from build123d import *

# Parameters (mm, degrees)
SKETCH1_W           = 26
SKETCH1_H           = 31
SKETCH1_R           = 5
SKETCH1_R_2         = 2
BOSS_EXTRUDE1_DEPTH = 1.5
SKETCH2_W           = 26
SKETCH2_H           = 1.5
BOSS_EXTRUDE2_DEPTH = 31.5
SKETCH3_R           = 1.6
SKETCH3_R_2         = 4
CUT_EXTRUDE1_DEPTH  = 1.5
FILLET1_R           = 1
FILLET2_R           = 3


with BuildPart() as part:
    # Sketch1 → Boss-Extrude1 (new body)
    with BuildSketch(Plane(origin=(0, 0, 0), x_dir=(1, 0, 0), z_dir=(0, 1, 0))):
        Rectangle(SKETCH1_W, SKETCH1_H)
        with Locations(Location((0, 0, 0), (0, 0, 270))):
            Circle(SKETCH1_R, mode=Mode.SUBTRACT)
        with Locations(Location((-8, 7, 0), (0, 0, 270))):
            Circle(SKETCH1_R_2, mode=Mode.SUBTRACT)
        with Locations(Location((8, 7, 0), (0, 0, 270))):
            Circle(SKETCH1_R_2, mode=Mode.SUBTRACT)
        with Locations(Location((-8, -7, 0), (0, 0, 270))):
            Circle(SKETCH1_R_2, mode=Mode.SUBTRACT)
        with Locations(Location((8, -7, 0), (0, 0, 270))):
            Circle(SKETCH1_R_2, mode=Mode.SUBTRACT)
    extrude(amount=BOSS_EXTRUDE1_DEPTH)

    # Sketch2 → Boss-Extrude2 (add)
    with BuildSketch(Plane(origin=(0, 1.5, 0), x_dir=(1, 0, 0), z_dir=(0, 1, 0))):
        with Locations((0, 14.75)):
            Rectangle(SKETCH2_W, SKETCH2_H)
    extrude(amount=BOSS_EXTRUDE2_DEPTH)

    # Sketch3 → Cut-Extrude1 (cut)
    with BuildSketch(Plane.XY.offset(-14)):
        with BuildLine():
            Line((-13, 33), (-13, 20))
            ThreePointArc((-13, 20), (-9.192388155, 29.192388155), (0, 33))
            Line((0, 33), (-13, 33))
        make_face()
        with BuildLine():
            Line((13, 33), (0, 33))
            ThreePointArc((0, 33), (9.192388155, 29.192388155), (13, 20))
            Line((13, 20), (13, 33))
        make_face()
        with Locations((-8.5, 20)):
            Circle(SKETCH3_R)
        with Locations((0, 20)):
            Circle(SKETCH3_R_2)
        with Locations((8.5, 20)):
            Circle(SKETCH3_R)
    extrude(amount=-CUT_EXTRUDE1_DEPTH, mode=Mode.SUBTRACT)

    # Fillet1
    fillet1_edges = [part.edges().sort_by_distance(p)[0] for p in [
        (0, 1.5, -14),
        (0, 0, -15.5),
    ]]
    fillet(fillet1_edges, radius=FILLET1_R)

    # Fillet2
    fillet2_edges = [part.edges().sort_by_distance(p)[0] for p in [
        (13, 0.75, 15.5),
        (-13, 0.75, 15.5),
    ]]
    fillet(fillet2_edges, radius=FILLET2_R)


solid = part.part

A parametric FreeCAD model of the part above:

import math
import FreeCAD as App
import Part
import Sketcher

V = App.Vector
Q = App.Units.Quantity


def edges_at(feature, points):
    """Names of the edges that pass closest to the given points."""
    edges = feature.Shape.Edges
    near = lambda p: min(range(len(edges)), key=lambda i: edges[i].distToShape(Part.Vertex(*p))[0])
    return sorted({f"Edge{near(p) + 1}" for p in points})


def add_polygon(sketch, points):
    """Adds a closed chain of lines whose ends are joined by coincident constraints."""
    first, n = sketch.GeometryCount, len(points)
    for a, b in zip(points, points[1:] + points[:1]):
        sketch.addGeometry(Part.LineSegment(App.Vector(*a, 0), App.Vector(*b, 0)), False)
    for i in range(n):
        sketch.addConstraint(Sketcher.Constraint("Coincident", first + i, 2, first + (i + 1) % n, 1))

doc = App.newDocument("Part")
params = doc.addObject("Spreadsheet::Sheet", "Params")
for row, (alias, value) in enumerate([
    ("sketch1_diameter", "4 mm"),
    ("sketch1_diameter2", "10 mm"),
    ("sketch1_width", "26 mm"),
    ("sketch1_height", "31 mm"),
    ("pad1_length", "1.5 mm"),
    ("sketch2_width", "26 mm"),
    ("sketch2_height", "1.5 mm"),
    ("pad2_length", "31.5 mm"),
    ("sketch3_diameter", "8 mm"),
    ("sketch3_radius", "13 mm"),
    ("sketch3_diameter2", "3.2 mm"),
    ("pocket1_length", "1.5 mm"),
    ("fillet_radius", "1 mm"),
    ("fillet2_radius", "3 mm"),
], start=1):
    params.set(f"A{row}", alias)
    params.set(f"B{row}", "=" + value)
    params.setAlias(f"B{row}", alias)

body = doc.addObject("PartDesign::Body", "Body")

sketch1 = body.newObject("Sketcher::SketchObject", "Sketch")
sketch1.AttachmentSupport = (doc.getObject("XZ_Plane"), [""])
sketch1.MapMode = "FlatFace"
add_polygon(sketch1, [(-13, -15.5), (-13, 15.5), (13, 15.5), (13, -15.5)])
sketch1.addGeometry(Part.Circle(V(-8, 7, 0), V(0, 0, 1), 2), False)
sketch1.addGeometry(Part.Circle(V(8, 7, 0), V(0, 0, 1), 2), False)
sketch1.addGeometry(Part.Circle(V(-8, -7, 0), V(0, 0, 1), 2), False)
sketch1.addGeometry(Part.Circle(V(0, 0, 0), V(0, 0, 1), 5), False)
sketch1.addGeometry(Part.Circle(V(8, -7, 0), V(0, 0, 1), 2), False)
sketch1.addConstraint([
    Sketcher.Constraint("Vertical", 0),
    Sketcher.Constraint("Horizontal", 1),
    Sketcher.Constraint("Vertical", 2),
    Sketcher.Constraint("Horizontal", 3),
    Sketcher.Constraint("Coincident", 7, 3, -1, 1),
    Sketcher.Constraint("Equal", 4, 5),
    Sketcher.Constraint("Equal", 5, 6),
    Sketcher.Constraint("Equal", 6, 8),
    Sketcher.Constraint("Symmetric", 5, 3, 6, 3, -1, 1),
    Sketcher.Constraint("Symmetric", 4, 3, 8, 3, -1, 1),
    Sketcher.Constraint("Symmetric", 0, 2, 2, 2, -1, 1),
    Sketcher.Constraint("Symmetric", 4, 3, 5, 3, -2),
    Sketcher.Constraint("Diameter", 4, Q("4 mm")),
    Sketcher.Constraint("Diameter", 7, Q("10 mm")),
    Sketcher.Constraint("DistanceX", 1, 1, 1, 2, Q("26 mm")),
    Sketcher.Constraint("DistanceY", 0, 1, 0, 2, Q("31 mm")),
    Sketcher.Constraint("DistanceX", 4, 3, -1, 1, Q("8 mm")),
    Sketcher.Constraint("DistanceY", -1, 1, 4, 3, Q("7 mm")),
])
sketch1.setExpression("Constraints[16]", "Params.sketch1_diameter")
sketch1.setExpression("Constraints[17]", "Params.sketch1_diameter2")
sketch1.setExpression("Constraints[18]", "Params.sketch1_width")
sketch1.setExpression("Constraints[19]", "Params.sketch1_height")
pad1 = body.newObject("PartDesign::Pad", "Pad")
pad1.Profile = sketch1
pad1.setExpression("Length", "Params.pad1_length")
pad1.Reversed = True

sketch2 = body.newObject("Sketcher::SketchObject", "Sketch001")
sketch2.AttachmentSupport = (doc.getObject("XZ_Plane"), [""])
sketch2.MapMode = "FlatFace"
sketch2.AttachmentOffset = App.Placement(V(0, 0, -1.5), App.Rotation())
add_polygon(sketch2, [(-13, -15.5), (-13, -14), (13, -14), (13, -15.5)])
sketch2.addConstraint([
    Sketcher.Constraint("Vertical", 0),
    Sketcher.Constraint("Horizontal", 1),
    Sketcher.Constraint("Vertical", 2),
    Sketcher.Constraint("Horizontal", 3),
    Sketcher.Constraint("DistanceX", 1, 1, 1, 2, Q("26 mm")),
    Sketcher.Constraint("DistanceY", 0, 1, 0, 2, Q("1.5 mm")),
    Sketcher.Constraint("DistanceX", 0, 2, -1, 1, Q("13 mm")),
    Sketcher.Constraint("DistanceY", 0, 2, -1, 1, Q("14 mm")),
])
sketch2.setExpression("Constraints[8]", "Params.sketch2_width")
sketch2.setExpression("Constraints[9]", "Params.sketch2_height")
pad2 = body.newObject("PartDesign::Pad", "Pad001")
pad2.Profile = sketch2
pad2.setExpression("Length", "Params.pad2_length")
pad2.Reversed = True

sketch3 = body.newObject("Sketcher::SketchObject", "Sketch002")
sketch3.AttachmentSupport = (doc.getObject("XY_Plane"), [""])
sketch3.MapMode = "FlatFace"
sketch3.AttachmentOffset = App.Placement(V(0, 0, -14), App.Rotation())
sketch3.addGeometry([
    Part.LineSegment(V(-13, 33, 0), V(-13, 20, 0)),
    Part.ArcOfCircle(Part.Circle(V(0, 20, 0), V(0, 0, 1), 13), math.radians(90), math.radians(180)),
    Part.LineSegment(V(0, 33, 0), V(-13, 33, 0)),
    Part.LineSegment(V(13, 33, 0), V(0, 33, 0)),
    Part.ArcOfCircle(Part.Circle(V(0, 20, 0), V(0, 0, 1), 13), math.radians(0), math.radians(90)),
    Part.LineSegment(V(13, 20, 0), V(13, 33, 0)),
    Part.Circle(V(-8.5, 20, 0), V(0, 0, 1), 1.6),
    Part.Circle(V(0, 20, 0), V(0, 0, 1), 4),
    Part.Circle(V(8.5, 20, 0), V(0, 0, 1), 1.6),
], False)
sketch3.addConstraint([
    Sketcher.Constraint("Tangent", 0, 2, 1, 2),
    Sketcher.Constraint("Tangent", 1, 1, 2, 1),
    Sketcher.Constraint("Coincident", 2, 2, 0, 1),
    Sketcher.Constraint("Tangent", 3, 2, 4, 2),
    Sketcher.Constraint("Tangent", 4, 1, 5, 1),
    Sketcher.Constraint("Coincident", 5, 2, 3, 1),
    Sketcher.Constraint("Vertical", 0),
    Sketcher.Constraint("Horizontal", 2),
    Sketcher.Constraint("Horizontal", 3),
    Sketcher.Constraint("Vertical", 5),
    Sketcher.Constraint("Coincident", 4, 3, 1, 3),
    Sketcher.Constraint("Coincident", 7, 3, 1, 3),
    Sketcher.Constraint("Equal", 1, 4),
    Sketcher.Constraint("Equal", 6, 8),
    Sketcher.Constraint("Symmetric", 6, 3, 8, 3, -2),
    Sketcher.Constraint("PointOnObject", 1, 3, -2),
    Sketcher.Constraint("Horizontal", 4, 3, 6, 3),
    Sketcher.Constraint("Diameter", 7, Q("8 mm")),
    Sketcher.Constraint("Radius", 1, Q("13 mm")),
    Sketcher.Constraint("Diameter", 6, Q("3.2 mm")),
    Sketcher.Constraint("DistanceY", -1, 1, 1, 3, Q("20 mm")),
    Sketcher.Constraint("DistanceX", 6, 3, 8, 3, Q("17 mm")),
])
sketch3.setExpression("Constraints[17]", "Params.sketch3_diameter")
sketch3.setExpression("Constraints[18]", "Params.sketch3_radius")
sketch3.setExpression("Constraints[19]", "Params.sketch3_diameter2")
pocket1 = body.newObject("PartDesign::Pocket", "Pocket")
pocket1.Profile = sketch3
pocket1.setExpression("Length", "Params.pocket1_length")
doc.recompute()

fillet = body.newObject("PartDesign::Fillet", "Fillet")
fillet.Base = (pocket1, edges_at(pocket1, [(0, 1.5, -14), (0, 0, -15.5)]))
fillet.setExpression("Radius", "Params.fillet_radius")
doc.recompute()

fillet2 = body.newObject("PartDesign::Fillet", "Fillet001")
fillet2.Base = (fillet, edges_at(fillet, [(13, 0.75, 15.5), (-13, 0.75, 15.5)]))
fillet2.setExpression("Radius", "Params.fillet2_radius")

doc.recompute()
